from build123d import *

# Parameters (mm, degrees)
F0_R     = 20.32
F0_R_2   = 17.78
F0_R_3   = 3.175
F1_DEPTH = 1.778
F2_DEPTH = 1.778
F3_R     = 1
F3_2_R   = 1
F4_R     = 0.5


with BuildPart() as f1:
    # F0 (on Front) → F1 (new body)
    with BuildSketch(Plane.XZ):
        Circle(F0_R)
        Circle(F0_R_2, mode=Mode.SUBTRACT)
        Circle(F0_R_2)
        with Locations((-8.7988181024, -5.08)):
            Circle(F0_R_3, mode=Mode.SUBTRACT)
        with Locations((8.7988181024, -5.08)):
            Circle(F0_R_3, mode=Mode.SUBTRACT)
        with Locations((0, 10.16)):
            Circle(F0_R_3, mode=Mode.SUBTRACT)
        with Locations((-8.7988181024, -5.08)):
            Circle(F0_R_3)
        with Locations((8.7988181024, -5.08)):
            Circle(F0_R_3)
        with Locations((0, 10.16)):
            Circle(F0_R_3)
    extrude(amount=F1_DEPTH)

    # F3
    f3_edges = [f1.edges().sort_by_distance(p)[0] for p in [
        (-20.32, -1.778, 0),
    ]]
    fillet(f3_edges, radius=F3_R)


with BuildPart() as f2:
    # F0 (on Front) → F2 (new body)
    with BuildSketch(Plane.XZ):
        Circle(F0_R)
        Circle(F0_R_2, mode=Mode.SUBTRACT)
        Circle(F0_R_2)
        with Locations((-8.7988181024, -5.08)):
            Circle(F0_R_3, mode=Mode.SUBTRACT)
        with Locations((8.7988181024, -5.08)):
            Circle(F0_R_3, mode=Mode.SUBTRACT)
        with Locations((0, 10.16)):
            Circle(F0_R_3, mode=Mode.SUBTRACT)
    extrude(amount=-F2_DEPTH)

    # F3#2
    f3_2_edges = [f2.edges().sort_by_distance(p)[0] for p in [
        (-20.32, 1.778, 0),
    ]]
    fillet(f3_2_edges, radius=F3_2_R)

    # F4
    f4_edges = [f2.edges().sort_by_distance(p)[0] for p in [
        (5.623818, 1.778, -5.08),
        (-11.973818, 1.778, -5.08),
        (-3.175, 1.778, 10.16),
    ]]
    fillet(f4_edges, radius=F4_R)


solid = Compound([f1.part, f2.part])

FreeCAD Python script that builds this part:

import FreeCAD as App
import Part
import Sketcher

V = App.Vector
Q = App.Units.Quantity


def edges_at(feature, points):
    """Names of the edges that pass closest to the given points."""
    edges = feature.Shape.Edges
    near = lambda p: min(range(len(edges)), key=lambda i: edges[i].distToShape(Part.Vertex(*p))[0])
    return sorted({f"Edge{near(p) + 1}" for p in points})

doc = App.newDocument("Part")
body = doc.addObject("PartDesign::Body", "Body")

sketch1 = body.newObject("Sketcher::SketchObject", "Sketch")
sketch1.AttachmentSupport = (doc.getObject("XZ_Plane"), [""])
sketch1.MapMode = "FlatFace"
sketch1.addGeometry(Part.Circle(V(0, 0, 0), V(0, 0, 1), 20), False)
sketch1.addConstraint([
    Sketcher.Constraint("Coincident", 0, 3, -1, 1),
    Sketcher.Constraint("Diameter", 0, Q("1.6 in")),
])
pad1 = body.newObject("PartDesign::Pad", "Pad")
pad1.Profile = sketch1
pad1.Length = Q("0.07 in")
doc.recompute()

fillet = body.newObject("PartDesign::Fillet", "Fillet")
fillet.Base = (pad1, edges_at(pad1, [(-20.32, -1.778, 0)]))
fillet.Radius = 1
body2 = doc.addObject("PartDesign::Body", "Body001")

sketch2 = body2.newObject("Sketcher::SketchObject", "Sketch001")
sketch2.AttachmentSupport = (doc.getObject("XZ_Plane001"), [""])
sketch2.MapMode = "FlatFace"
sketch2.addGeometry([
    Part.Circle(V(0, 0, 0), V(0, 0, 1), 20.3),
    Part.Circle(V(-8.8, -5.1, 0), V(0, 0, 1), 3.2),
    Part.Circle(V(8.8, -5.1, 0), V(0, 0, 1), 3.2),
    Part.Circle(V(0, 10.2, 0), V(0, 0, 1), 3.2),
], False)
sketch2.addConstraint([
    Sketcher.Constraint("Coincident", 0, 3, -1, 1),
    Sketcher.Constraint("Equal", 1, 2),
    Sketcher.Constraint("Equal", 2, 3),
    Sketcher.Constraint("Symmetric", 1, 3, 2, 3, -2),
    Sketcher.Constraint("PointOnObject", 3, 3, -2),
    Sketcher.Constraint("Diameter", 0, Q("1.6 in")),
    Sketcher.Constraint("Diameter", 1, Q("0.25 in")),
    Sketcher.Constraint("DistanceY", 1, 3, -1, 1, Q("0.2 in")),
    Sketcher.Constraint("DistanceY", -1, 1, 3, 3, Q("0.4 in")),
    Sketcher.Constraint("DistanceX", 1, 3, -1, 1, Q("8.798818 mm")),
])
pad2 = body2.newObject("PartDesign::Pad", "Pad001")
pad2.Profile = sketch2
pad2.Length = Q("0.07 in")
pad2.Reversed = True
doc.recompute()

fillet2 = body2.newObject("PartDesign::Fillet", "Fillet001")
fillet2.Base = (pad2, edges_at(pad2, [(-20.32, 1.778, 0)]))
fillet2.Radius = 1
doc.recompute()

fillet3 = body2.newObject("PartDesign::Fillet", "Fillet002")
fillet3.Base = (fillet2, edges_at(fillet2, [(5.624, 1.778, -5.08), (-11.974, 1.778, -5.08), (-3.175, 1.778, 10.16)]))
fillet3.Radius = 0.5

doc.recompute()
